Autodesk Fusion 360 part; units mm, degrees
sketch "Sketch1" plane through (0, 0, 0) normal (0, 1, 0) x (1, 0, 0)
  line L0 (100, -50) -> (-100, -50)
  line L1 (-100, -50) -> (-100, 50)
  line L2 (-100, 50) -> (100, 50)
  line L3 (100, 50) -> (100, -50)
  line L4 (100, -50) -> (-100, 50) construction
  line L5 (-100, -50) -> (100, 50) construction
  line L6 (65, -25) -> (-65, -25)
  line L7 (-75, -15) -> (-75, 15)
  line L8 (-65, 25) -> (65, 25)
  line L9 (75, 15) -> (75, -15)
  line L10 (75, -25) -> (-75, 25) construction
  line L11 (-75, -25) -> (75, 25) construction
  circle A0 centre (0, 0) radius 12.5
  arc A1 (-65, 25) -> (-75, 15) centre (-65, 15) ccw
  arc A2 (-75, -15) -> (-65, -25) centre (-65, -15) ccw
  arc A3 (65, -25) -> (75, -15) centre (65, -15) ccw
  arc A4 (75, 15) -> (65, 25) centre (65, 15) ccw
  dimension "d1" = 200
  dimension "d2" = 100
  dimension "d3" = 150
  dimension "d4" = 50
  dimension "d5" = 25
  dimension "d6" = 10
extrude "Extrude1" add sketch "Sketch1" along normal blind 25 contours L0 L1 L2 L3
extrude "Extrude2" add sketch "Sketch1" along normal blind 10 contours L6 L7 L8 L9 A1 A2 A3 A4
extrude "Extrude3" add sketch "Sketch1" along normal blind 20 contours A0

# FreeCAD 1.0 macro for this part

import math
import FreeCAD as App
import Part
import Sketcher
from FreeCAD import Vector
Q = App.Units.Quantity

doc = App.newDocument("Part")
body = doc.addObject("PartDesign::Body", "Body")

# Sketch on XZ plane
sketch1 = body.newObject("Sketcher::SketchObject", "Sketch")
sketch1.AttachmentSupport = (doc.getObject("XZ_Plane"), [""])
sketch1.MapMode = "FlatFace"
sketch1.addGeometry([
    Part.LineSegment(Vector(-100, 50, 0), Vector(100, 50, 0)),  # 0
    Part.LineSegment(Vector(100, 50, 0), Vector(100, -50, 0)),  # 1
    Part.LineSegment(Vector(100, -50, 0), Vector(-100, -50, 0)),  # 2
    Part.LineSegment(Vector(-100, -50, 0), Vector(-100, 50, 0)),  # 3
    Part.ArcOfCircle(Part.Circle(Vector(65, 15, 0), Vector(0, 0, 1), 10), math.radians(0), math.radians(90)),  # 4
    Part.LineSegment(Vector(65, 25, 0), Vector(-65, 25, 0)),  # 5
    Part.ArcOfCircle(Part.Circle(Vector(-65, 15, 0), Vector(0, 0, 1), 10), math.radians(90), math.radians(180)),  # 6
    Part.LineSegment(Vector(-75, 15, 0), Vector(-75, -15, 0)),  # 7
    Part.ArcOfCircle(Part.Circle(Vector(-65, -15, 0), Vector(0, 0, 1), 10), math.radians(180), math.radians(270)),  # 8
    Part.LineSegment(Vector(-65, -25, 0), Vector(65, -25, 0)),  # 9
    Part.ArcOfCircle(Part.Circle(Vector(65, -15, 0), Vector(0, 0, 1), 10), math.radians(-90), math.radians(0)),  # 10
    Part.LineSegment(Vector(75, -15, 0), Vector(75, 15, 0)),  # 11
], False)
sketch1.addConstraint([
    Sketcher.Constraint("Coincident", 0, 2, 1, 1),
    Sketcher.Constraint("Coincident", 1, 2, 2, 1),
    Sketcher.Constraint("Coincident", 2, 2, 3, 1),
    Sketcher.Constraint("Coincident", 3, 2, 0, 1),
    Sketcher.Constraint("Tangent", 4, 2, 5, 1),
    Sketcher.Constraint("Tangent", 5, 2, 6, 1),
    Sketcher.Constraint("Tangent", 6, 2, 7, 1),
    Sketcher.Constraint("Tangent", 7, 2, 8, 1),
    Sketcher.Constraint("Tangent", 8, 2, 9, 1),
    Sketcher.Constraint("Tangent", 9, 2, 10, 1),
    Sketcher.Constraint("Tangent", 10, 2, 11, 1),
    Sketcher.Constraint("Tangent", 11, 2, 4, 1),
    Sketcher.Constraint("Horizontal", 0),
    Sketcher.Constraint("Vertical", 1),
    Sketcher.Constraint("Horizontal", 2),
    Sketcher.Constraint("Vertical", 3),
    Sketcher.Constraint("Horizontal", 5),
    Sketcher.Constraint("Vertical", 7),
    Sketcher.Constraint("Horizontal", 9),
    Sketcher.Constraint("Vertical", 11),
    Sketcher.Constraint("Equal", 4, 6),
    Sketcher.Constraint("Equal", 6, 8),
    Sketcher.Constraint("Equal", 8, 10),
    Sketcher.Constraint("Symmetric", 4, 3, 8, 3, -1, 1),
    Sketcher.Constraint("Symmetric", 0, 2, 2, 2, -1, 1),
    Sketcher.Constraint("Radius", 4, Q("10 mm")),
    Sketcher.Constraint("DistanceX", 0, 1, 0, 2, Q("200 mm")),
    Sketcher.Constraint("DistanceY", 1, 2, 1, 1, Q("100 mm")),
    Sketcher.Constraint("DistanceY", -1, 1, 4, 2, Q("25 mm")),
    Sketcher.Constraint("DistanceX", 3, 2, 6, 2, Q("25 mm")),
])
pad1 = body.newObject("PartDesign::Pad", "Pad")
pad1.Profile = sketch1
pad1.Length = 25
pad1.Reversed = True

# Sketch on XZ plane
sketch2 = body.newObject("Sketcher::SketchObject", "Sketch001")
sketch2.AttachmentSupport = (doc.getObject("XZ_Plane"), [""])
sketch2.MapMode = "FlatFace"
sketch2.addGeometry([
    Part.LineSegment(Vector(-65, 25, 0), Vector(65, 25, 0)),  # 0
    Part.ArcOfCircle(Part.Circle(Vector(65, 15, 0), Vector(0, 0, 1), 10), math.radians(0), math.radians(90)),  # 1
    Part.LineSegment(Vector(75, 15, 0), Vector(75, -15, 0)),  # 2
    Part.ArcOfCircle(Part.Circle(Vector(65, -15, 0), Vector(0, 0, 1), 10), math.radians(-90), math.radians(0)),  # 3
    Part.LineSegment(Vector(65, -25, 0), Vector(-65, -25, 0)),  # 4
    Part.ArcOfCircle(Part.Circle(Vector(-65, -15, 0), Vector(0, 0, 1), 10), math.radians(180), math.radians(270)),  # 5
    Part.LineSegment(Vector(-75, -15, 0), Vector(-75, 15, 0)),  # 6
    Part.ArcOfCircle(Part.Circle(Vector(-65, 15, 0), Vector(0, 0, 1), 10), math.radians(90), math.radians(180)),  # 7
    Part.Circle(Vector(0, 0, 0), Vector(0, 0, 1), 12),  # 8
], False)
sketch2.addConstraint([
    Sketcher.Constraint("Tangent", 0, 2, 1, 2),
    Sketcher.Constraint("Tangent", 1, 1, 2, 1),
    Sketcher.Constraint("Tangent", 2, 2, 3, 2),
    Sketcher.Constraint("Tangent", 3, 1, 4, 1),
    Sketcher.Constraint("Tangent", 4, 2, 5, 2),
    Sketcher.Constraint("Tangent", 5, 1, 6, 1),
    Sketcher.Constraint("Tangent", 6, 2, 7, 2),
    Sketcher.Constraint("Tangent", 7, 1, 0, 1),
    Sketcher.Constraint("Horizontal", 0),
    Sketcher.Constraint("Vertical", 2),
    Sketcher.Constraint("Horizontal", 4),
    Sketcher.Constraint("Vertical", 6),
    Sketcher.Constraint("Coincident", 8, 3, -1, 1),
    Sketcher.Constraint("Equal", 1, 3),
    Sketcher.Constraint("Equal", 3, 5),
    Sketcher.Constraint("Equal", 5, 7),
    Sketcher.Constraint("Symmetric", 1, 3, 5, 3, -1, 1),
    Sketcher.Constraint("Diameter", 8, Q("25 mm")),
    Sketcher.Constraint("Radius", 1, Q("10 mm")),
    Sketcher.Constraint("DistanceY", -1, 1, 0, 2, Q("25 mm")),
    Sketcher.Constraint("DistanceX", 0, 1, 0, 2, Q("130 mm")),
])
pad2 = body.newObject("PartDesign::Pad", "Pad001")
pad2.Profile = sketch2
pad2.Length = 10
pad2.Reversed = True

# Sketch on XZ plane
sketch3 = body.newObject("Sketcher::SketchObject", "Sketch002")
sketch3.AttachmentSupport = (doc.getObject("XZ_Plane"), [""])
sketch3.MapMode = "FlatFace"
sketch3.addGeometry(Part.Circle(Vector(0, 0, 0), Vector(0, 0, 1), 12), False)
sketch3.addConstraint([
    Sketcher.Constraint("Coincident", 0, 3, -1, 1),
    Sketcher.Constraint("Diameter", 0, Q("25 mm")),
])
pad3 = body.newObject("PartDesign::Pad", "Pad002")
pad3.Profile = sketch3
pad3.Length = 20
pad3.Reversed = True

doc.recompute()
